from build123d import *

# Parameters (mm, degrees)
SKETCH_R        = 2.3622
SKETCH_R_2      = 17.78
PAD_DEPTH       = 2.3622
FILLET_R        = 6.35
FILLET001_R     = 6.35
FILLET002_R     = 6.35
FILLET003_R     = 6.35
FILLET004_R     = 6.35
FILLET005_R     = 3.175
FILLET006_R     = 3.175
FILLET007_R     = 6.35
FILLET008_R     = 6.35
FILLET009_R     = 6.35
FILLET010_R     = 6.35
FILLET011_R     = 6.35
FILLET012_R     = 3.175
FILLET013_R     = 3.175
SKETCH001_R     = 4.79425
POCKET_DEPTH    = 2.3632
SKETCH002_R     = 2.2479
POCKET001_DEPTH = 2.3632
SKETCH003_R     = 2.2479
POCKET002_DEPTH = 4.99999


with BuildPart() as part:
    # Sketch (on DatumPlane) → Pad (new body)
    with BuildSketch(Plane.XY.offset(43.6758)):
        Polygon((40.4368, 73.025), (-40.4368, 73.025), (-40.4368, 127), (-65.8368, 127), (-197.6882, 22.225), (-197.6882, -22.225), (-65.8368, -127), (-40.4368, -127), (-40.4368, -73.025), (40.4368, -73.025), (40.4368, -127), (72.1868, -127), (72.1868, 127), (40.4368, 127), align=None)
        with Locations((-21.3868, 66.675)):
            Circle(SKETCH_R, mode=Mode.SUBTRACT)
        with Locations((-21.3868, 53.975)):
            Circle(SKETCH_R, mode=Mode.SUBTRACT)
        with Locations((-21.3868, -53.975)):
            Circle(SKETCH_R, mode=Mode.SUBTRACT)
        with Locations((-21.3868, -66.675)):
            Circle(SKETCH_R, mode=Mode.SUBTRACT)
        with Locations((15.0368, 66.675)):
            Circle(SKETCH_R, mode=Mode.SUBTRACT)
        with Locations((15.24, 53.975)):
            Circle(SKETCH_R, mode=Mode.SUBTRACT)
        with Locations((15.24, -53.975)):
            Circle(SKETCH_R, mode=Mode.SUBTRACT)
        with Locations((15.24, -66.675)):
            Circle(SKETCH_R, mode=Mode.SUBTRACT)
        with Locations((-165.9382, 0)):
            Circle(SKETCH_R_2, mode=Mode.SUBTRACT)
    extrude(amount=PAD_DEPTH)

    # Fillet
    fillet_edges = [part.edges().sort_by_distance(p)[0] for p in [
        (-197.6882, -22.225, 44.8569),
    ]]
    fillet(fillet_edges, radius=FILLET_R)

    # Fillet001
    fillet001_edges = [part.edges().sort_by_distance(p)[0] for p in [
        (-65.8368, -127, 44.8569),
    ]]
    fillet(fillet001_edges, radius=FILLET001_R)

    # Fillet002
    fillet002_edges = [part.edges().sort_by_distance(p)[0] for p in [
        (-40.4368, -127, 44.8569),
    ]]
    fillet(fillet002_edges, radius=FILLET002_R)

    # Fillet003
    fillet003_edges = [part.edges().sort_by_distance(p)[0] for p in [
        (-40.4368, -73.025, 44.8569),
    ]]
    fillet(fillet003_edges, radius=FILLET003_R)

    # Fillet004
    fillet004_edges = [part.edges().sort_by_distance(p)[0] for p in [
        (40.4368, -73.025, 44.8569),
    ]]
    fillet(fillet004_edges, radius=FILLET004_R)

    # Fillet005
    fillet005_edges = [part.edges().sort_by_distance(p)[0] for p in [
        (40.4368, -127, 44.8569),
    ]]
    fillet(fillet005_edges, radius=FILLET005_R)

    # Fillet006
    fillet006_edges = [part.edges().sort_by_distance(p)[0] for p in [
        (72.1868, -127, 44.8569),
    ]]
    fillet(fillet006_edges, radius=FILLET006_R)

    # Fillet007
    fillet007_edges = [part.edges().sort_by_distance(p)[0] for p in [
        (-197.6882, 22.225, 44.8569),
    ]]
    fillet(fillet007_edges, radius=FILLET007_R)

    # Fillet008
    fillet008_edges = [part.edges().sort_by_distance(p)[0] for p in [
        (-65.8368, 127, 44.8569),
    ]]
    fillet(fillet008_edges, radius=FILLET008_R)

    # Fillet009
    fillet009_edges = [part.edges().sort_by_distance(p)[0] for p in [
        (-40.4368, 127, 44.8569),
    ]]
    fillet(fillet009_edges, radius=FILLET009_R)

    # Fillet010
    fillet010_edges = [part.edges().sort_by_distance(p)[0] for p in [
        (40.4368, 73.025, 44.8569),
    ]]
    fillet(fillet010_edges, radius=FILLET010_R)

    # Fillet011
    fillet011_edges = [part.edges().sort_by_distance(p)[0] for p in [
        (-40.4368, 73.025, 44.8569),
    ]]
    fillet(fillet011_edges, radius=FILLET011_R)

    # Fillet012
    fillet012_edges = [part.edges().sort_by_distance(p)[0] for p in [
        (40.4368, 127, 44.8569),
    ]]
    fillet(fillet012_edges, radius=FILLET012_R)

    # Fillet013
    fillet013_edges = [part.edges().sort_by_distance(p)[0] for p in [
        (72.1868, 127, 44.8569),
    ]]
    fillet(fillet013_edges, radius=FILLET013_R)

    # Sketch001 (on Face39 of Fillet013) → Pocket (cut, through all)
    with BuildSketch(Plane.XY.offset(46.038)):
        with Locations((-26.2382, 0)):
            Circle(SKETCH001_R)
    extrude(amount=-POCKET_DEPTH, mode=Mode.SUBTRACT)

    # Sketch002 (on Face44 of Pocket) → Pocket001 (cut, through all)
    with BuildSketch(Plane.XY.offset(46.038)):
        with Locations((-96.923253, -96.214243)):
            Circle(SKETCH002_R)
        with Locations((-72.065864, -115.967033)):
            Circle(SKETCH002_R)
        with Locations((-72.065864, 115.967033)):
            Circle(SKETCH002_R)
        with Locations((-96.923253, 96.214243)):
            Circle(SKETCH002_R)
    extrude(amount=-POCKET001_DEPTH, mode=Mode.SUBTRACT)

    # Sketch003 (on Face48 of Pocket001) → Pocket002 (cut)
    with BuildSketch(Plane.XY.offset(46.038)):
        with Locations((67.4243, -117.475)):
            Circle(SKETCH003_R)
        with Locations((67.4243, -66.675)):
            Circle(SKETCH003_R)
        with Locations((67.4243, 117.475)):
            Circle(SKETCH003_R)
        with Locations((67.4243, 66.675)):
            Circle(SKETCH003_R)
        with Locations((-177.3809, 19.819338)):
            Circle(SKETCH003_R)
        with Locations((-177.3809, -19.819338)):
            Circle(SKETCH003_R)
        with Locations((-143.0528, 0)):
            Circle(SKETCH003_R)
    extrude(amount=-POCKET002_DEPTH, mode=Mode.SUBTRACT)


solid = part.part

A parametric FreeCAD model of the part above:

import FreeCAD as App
import Part
import Sketcher
from FreeCAD import Vector
Q = App.Units.Quantity


def edges_at(feature, points):
    """Names of the edges that pass closest to the given points."""
    edges = feature.Shape.Edges
    near = lambda p: min(range(len(edges)), key=lambda i: edges[i].distToShape(Part.Vertex(*p))[0])
    return sorted({f"Edge{near(p) + 1}" for p in points})


def add_polygon(sketch, points):
    """Adds a closed chain of lines whose ends are joined by coincident constraints."""
    first, n = sketch.GeometryCount, len(points)
    for a, b in zip(points, points[1:] + points[:1]):
        sketch.addGeometry(Part.LineSegment(App.Vector(*a, 0), App.Vector(*b, 0)), False)
    for i in range(n):
        sketch.addConstraint(Sketcher.Constraint("Coincident", first + i, 2, first + (i + 1) % n, 1))

doc = App.newDocument("Part")
params = doc.addObject("Spreadsheet::Sheet", "Params")
for row, (alias, value) in enumerate([
    ("sketch1_diameter", "1.4 in"),
    ("sketch1_width", "1 in"),
    ("sketch1_height", "10 in"),
    ("sketch1_diameter2", "0.186 in"),
    ("sketch1_width2", "1.25 in"),
    ("pad1_length", "0.093 in"),
    ("fillet_radius", "0.25 in"),
    ("fillet2_radius", "0.25 in"),
    ("fillet3_radius", "0.25 in"),
    ("fillet4_radius", "0.25 in"),
    ("fillet5_radius", "0.25 in"),
    ("fillet6_radius", "0.125 in"),
    ("fillet7_radius", "0.125 in"),
    ("fillet8_radius", "0.25 in"),
    ("fillet9_radius", "0.25 in"),
    ("fillet10_radius", "0.25 in"),
    ("fillet11_radius", "0.25 in"),
    ("fillet12_radius", "0.25 in"),
    ("fillet13_radius", "0.125 in"),
    ("fillet14_radius", "0.125 in"),
    ("sketch3_diameter", "0.177 in"),
    ("sketch4_diameter", "0.177 in"),
    ("pocket3_length", "4.99999 mm"),
], start=1):
    params.set(f"A{row}", alias)
    params.set(f"B{row}", "=" + value)
    params.setAlias(f"B{row}", alias)

body = doc.addObject("PartDesign::Body", "Body")

# Sketch on XY plane
sketch1 = body.newObject("Sketcher::SketchObject", "Sketch")
sketch1.AttachmentSupport = (doc.getObject("XY_Plane"), [""])
sketch1.MapMode = "FlatFace"
sketch1.AttachmentOffset = App.Placement(Vector(0, 0, 43.6758), App.Rotation())
add_polygon(sketch1, [(40.4, 73), (-40.4, 73), (-40.4, 127), (-65.8, 127), (-197.7, 22.2), (-197.7, -22.2), (-65.8, -127), (-40.4, -127), (-40.4, -73), (40.4, -73), (40.4, -127), (72.2, -127), (72.2, 127), (40.4, 127)])  # lines 0-13
sketch1.addGeometry(Part.Circle(Vector(-21.4, -66.7, 0), Vector(0, 0, 1), 2.4), False)  # 14
sketch1.addGeometry(Part.Circle(Vector(-21.4, -54, 0), Vector(0, 0, 1), 2.4), False)  # 15
sketch1.addGeometry(Part.Circle(Vector(15.2, -66.7, 0), Vector(0, 0, 1), 2.4), False)  # 16
sketch1.addGeometry(Part.Circle(Vector(15.2, -54, 0), Vector(0, 0, 1), 2.4), False)  # 17
sketch1.addGeometry(Part.Circle(Vector(-165.9, 0, 0), Vector(0, 0, 1), 17.8), False)  # 18
sketch1.addGeometry(Part.Circle(Vector(-21.4, 54, 0), Vector(0, 0, 1), 2.4), False)  # 19
sketch1.addGeometry(Part.Circle(Vector(-21.4, 66.7, 0), Vector(0, 0, 1), 2.4), False)  # 20
sketch1.addGeometry(Part.Circle(Vector(15.2, 54, 0), Vector(0, 0, 1), 2.4), False)  # 21
sketch1.addGeometry(Part.Circle(Vector(15, 66.7, 0), Vector(0, 0, 1), 2.4), False)  # 22
sketch1.addConstraint([
    Sketcher.Constraint("Horizontal", 0),
    Sketcher.Constraint("Vertical", 1),
    Sketcher.Constraint("Horizontal", 2),
    Sketcher.Constraint("Vertical", 4),
    Sketcher.Constraint("Horizontal", 6),
    Sketcher.Constraint("Vertical", 7),
    Sketcher.Constraint("Horizontal", 8),
    Sketcher.Constraint("Vertical", 9),
    Sketcher.Constraint("Horizontal", 10),
    Sketcher.Constraint("Vertical", 11),
    Sketcher.Constraint("Horizontal", 12),
    Sketcher.Constraint("Vertical", 13),
    Sketcher.Constraint("Equal", 14, 15),
    Sketcher.Constraint("Equal", 15, 16),
    Sketcher.Constraint("Equal", 16, 17),
    Sketcher.Constraint("Equal", 17, 19),
    Sketcher.Constraint("Equal", 19, 20),
    Sketcher.Constraint("Equal", 20, 21),
    Sketcher.Constraint("Equal", 21, 22),
    Sketcher.Constraint("Symmetric", 0, 2, 8, 2, -1, 1),
    Sketcher.Constraint("Symmetric", 6, 2, 12, 2, -1, 1),
    Sketcher.Constraint("Symmetric", 6, 2, 9, 2, -2),
    Sketcher.Constraint("Symmetric", 15, 3, 19, 3, -1),
    Sketcher.Constraint("Symmetric", 14, 3, 20, 3, -1),
    Sketcher.Constraint("Symmetric", 17, 3, 21, 3, -1),
    Sketcher.Constraint("Symmetric", 2, 2, 5, 2, -1),
    Sketcher.Constraint("PointOnObject", 18, 3, -1),
    Sketcher.Constraint("Horizontal", 14, 3, 16, 3),
    Sketcher.Constraint("Horizontal", 15, 3, 17, 3),
    Sketcher.Constraint("Horizontal", 20, 3, 22, 3),
    Sketcher.Constraint("Vertical", 14, 3, 15, 3),
    Sketcher.Constraint("Vertical", 16, 3, 17, 3),
    Sketcher.Constraint("Equal", 3, 5),
    Sketcher.Constraint("Diameter", 18, Q("1.4 in")),
    Sketcher.Constraint("DistanceX", 2, 2, 2, 1, Q("1 in")),
    Sketcher.Constraint("DistanceY", 11, 1, 11, 2, Q("10 in")),
    Sketcher.Constraint("Diameter", 14, Q("0.186 in")),
    Sketcher.Constraint("DistanceY", 15, 3, 0, 2, Q("5 in")),
    Sketcher.Constraint("DistanceY", 3, 2, 0, 2, Q("2 in")),
    Sketcher.Constraint("DistanceX", 22, 3, 12, 2, Q("1 in")),
    Sketcher.Constraint("DistanceX", 10, 1, 10, 2, Q("1.25 in")),
    Sketcher.Constraint("DistanceY", 4, 2, 4, 1, Q("1.75 in")),
    Sketcher.Constraint("DistanceX", -1, 1, 16, 3, Q("0.6 in")),
    Sketcher.Constraint("DistanceY", 14, 3, 15, 3, Q("0.5 in")),
    Sketcher.Constraint("DistanceX", 0, 2, 0, 1, Q("3.184 in")),
    Sketcher.Constraint("DistanceX", 0, 2, 20, 3, Q("0.75 in")),
    Sketcher.Constraint("DistanceX", 3, 2, 18, 3, Q("1.25 in")),
    Sketcher.Constraint("DistanceX", 18, 3, -1, 1, Q("6.533 in")),
])
sketch1.setExpression("Constraints[47]", "Params.sketch1_diameter")
sketch1.setExpression("Constraints[48]", "Params.sketch1_width")
sketch1.setExpression("Constraints[49]", "Params.sketch1_height")
sketch1.setExpression("Constraints[50]", "Params.sketch1_diameter2")
sketch1.setExpression("Constraints[54]", "Params.sketch1_width2")
pad1 = body.newObject("PartDesign::Pad", "Pad")
pad1.Profile = sketch1
pad1.setExpression("Length", "Params.pad1_length")
doc.recompute()

fillet = body.newObject("PartDesign::Fillet", "Fillet")
fillet.Base = (pad1, edges_at(pad1, [(-197.688, -22.225, 44.857)]))
fillet.setExpression("Radius", "Params.fillet_radius")
doc.recompute()

fillet2 = body.newObject("PartDesign::Fillet", "Fillet001")
fillet2.Base = (fillet, edges_at(fillet, [(-65.837, -127, 44.857)]))
fillet2.setExpression("Radius", "Params.fillet2_radius")
doc.recompute()

fillet3 = body.newObject("PartDesign::Fillet", "Fillet002")
fillet3.Base = (fillet2, edges_at(fillet2, [(-40.437, -127, 44.857)]))
fillet3.setExpression("Radius", "Params.fillet3_radius")
doc.recompute()

fillet4 = body.newObject("PartDesign::Fillet", "Fillet003")
fillet4.Base = (fillet3, edges_at(fillet3, [(-40.437, -73.025, 44.857)]))
fillet4.setExpression("Radius", "Params.fillet4_radius")
doc.recompute()

fillet5 = body.newObject("PartDesign::Fillet", "Fillet004")
fillet5.Base = (fillet4, edges_at(fillet4, [(40.437, -73.025, 44.857)]))
fillet5.setExpression("Radius", "Params.fillet5_radius")
doc.recompute()

fillet6 = body.newObject("PartDesign::Fillet", "Fillet005")
fillet6.Base = (fillet5, edges_at(fillet5, [(40.437, -127, 44.857)]))
fillet6.setExpression("Radius", "Params.fillet6_radius")
doc.recompute()

fillet7 = body.newObject("PartDesign::Fillet", "Fillet006")
fillet7.Base = (fillet6, edges_at(fillet6, [(72.187, -127, 44.857)]))
fillet7.setExpression("Radius", "Params.fillet7_radius")
doc.recompute()

fillet8 = body.newObject("PartDesign::Fillet", "Fillet007")
fillet8.Base = (fillet7, edges_at(fillet7, [(-197.688, 22.225, 44.857)]))
fillet8.setExpression("Radius", "Params.fillet8_radius")
doc.recompute()

fillet9 = body.newObject("PartDesign::Fillet", "Fillet008")
fillet9.Base = (fillet8, edges_at(fillet8, [(-65.837, 127, 44.857)]))
fillet9.setExpression("Radius", "Params.fillet9_radius")
doc.recompute()

fillet10 = body.newObject("PartDesign::Fillet", "Fillet009")
fillet10.Base = (fillet9, edges_at(fillet9, [(-40.437, 127, 44.857)]))
fillet10.setExpression("Radius", "Params.fillet10_radius")
doc.recompute()

fillet11 = body.newObject("PartDesign::Fillet", "Fillet010")
fillet11.Base = (fillet10, edges_at(fillet10, [(40.437, 73.025, 44.857)]))
fillet11.setExpression("Radius", "Params.fillet11_radius")
doc.recompute()

fillet12 = body.newObject("PartDesign::Fillet", "Fillet011")
fillet12.Base = (fillet11, edges_at(fillet11, [(-40.437, 73.025, 44.857)]))
fillet12.setExpression("Radius", "Params.fillet12_radius")
doc.recompute()

fillet13 = body.newObject("PartDesign::Fillet", "Fillet012")
fillet13.Base = (fillet12, edges_at(fillet12, [(40.437, 127, 44.857)]))
fillet13.setExpression("Radius", "Params.fillet13_radius")
doc.recompute()

fillet14 = body.newObject("PartDesign::Fillet", "Fillet013")
fillet14.Base = (fillet13, edges_at(fillet13, [(72.187, 127, 44.857)]))
fillet14.setExpression("Radius", "Params.fillet14_radius")

# Sketch on XY plane
sketch2 = body.newObject("Sketcher::SketchObject", "Sketch001")
sketch2.AttachmentSupport = (doc.getObject("XY_Plane"), [""])
sketch2.MapMode = "FlatFace"
sketch2.AttachmentOffset = App.Placement(Vector(0, 0, 46.038), App.Rotation())
sketch2.addGeometry(Part.Circle(Vector(-26.2, 0, 0), Vector(0, 0, 1), 4.8), False)
sketch2.addConstraint([
    Sketcher.Constraint("PointOnObject", 0, 3, -1),
    Sketcher.Constraint("Diameter", 0, Q("0.3775 in")),
    Sketcher.Constraint("DistanceX", 0, 3, -1, 1, Q("1.033 in")),
])
pocket1 = body.newObject("PartDesign::Pocket", "Pocket")
pocket1.Profile = sketch2
pocket1.Type = "ThroughAll"

# Sketch on XY plane
sketch3 = body.newObject("Sketcher::SketchObject", "Sketch002")
sketch3.AttachmentSupport = (doc.getObject("XY_Plane"), [""])
sketch3.MapMode = "FlatFace"
sketch3.AttachmentOffset = App.Placement(Vector(0, 0, 46.038), App.Rotation())
sketch3.addGeometry([
    Part.Circle(Vector(-96.9, -96.2, 0), Vector(0, 0, 1), 2.2),
    Part.Circle(Vector(-72.1, -116, 0), Vector(0, 0, 1), 2.2),
    Part.Circle(Vector(-72.1, 116, 0), Vector(0, 0, 1), 2.2),
    Part.Circle(Vector(-96.9, 96.2, 0), Vector(0, 0, 1), 2.2),
], False)
sketch3.addConstraint([
    Sketcher.Constraint("Equal", 0, 1),
    Sketcher.Constraint("Equal", 1, 2),
    Sketcher.Constraint("Equal", 2, 3),
    Sketcher.Constraint("Symmetric", 1, 3, 2, 3, -1),
    Sketcher.Constraint("Symmetric", 0, 3, 3, 3, -1),
    Sketcher.Constraint("Diameter", 0, Q("0.177 in")),
    Sketcher.Constraint("DistanceX", 0, 3, 1, 3, Q("24.857389 mm")),
    Sketcher.Constraint("DistanceY", 1, 3, 0, 3, Q("19.75279 mm")),
    Sketcher.Constraint("DistanceX", 0, 3, -1, 1, Q("96.923253 mm")),
    Sketcher.Constraint("DistanceY", 0, 3, -1, 1, Q("96.214243 mm")),
])
sketch3.setExpression("Constraints[5]", "Params.sketch3_diameter")
pocket2 = body.newObject("PartDesign::Pocket", "Pocket001")
pocket2.Profile = sketch3
pocket2.Type = "ThroughAll"

# Sketch on XY plane
sketch4 = body.newObject("Sketcher::SketchObject", "Sketch003")
sketch4.AttachmentSupport = (doc.getObject("XY_Plane"), [""])
sketch4.MapMode = "FlatFace"
sketch4.AttachmentOffset = App.Placement(Vector(0, 0, 46.038), App.Rotation())
sketch4.addGeometry([
    Part.Circle(Vector(67.4, -117.5, 0), Vector(0, 0, 1), 2.2),  # 0
    Part.Circle(Vector(67.4, -66.7, 0), Vector(0, 0, 1), 2.2),  # 1
    Part.Circle(Vector(67.4, 117.5, 0), Vector(0, 0, 1), 2.2),  # 2
    Part.Circle(Vector(67.4, 66.7, 0), Vector(0, 0, 1), 2.2),  # 3
    Part.Circle(Vector(-177.4, 19.8, 0), Vector(0, 0, 1), 2.2),  # 4
    Part.Circle(Vector(-177.4, -19.8, 0), Vector(0, 0, 1), 2.2),  # 5
    Part.Circle(Vector(-143.1, 0, 0), Vector(0, 0, 1), 2.2),  # 6
], False)
sketch4.addConstraint([
    Sketcher.Constraint("Equal", 0, 1),
    Sketcher.Constraint("Equal", 1, 2),
    Sketcher.Constraint("Equal", 2, 3),
    Sketcher.Constraint("Equal", 3, 4),
    Sketcher.Constraint("Equal", 4, 5),
    Sketcher.Constraint("Equal", 5, 6),
    Sketcher.Constraint("Symmetric", 0, 3, 2, 3, -1),
    Sketcher.Constraint("Symmetric", 1, 3, 3, 3, -1),
    Sketcher.Constraint("Symmetric", 4, 3, 5, 3, -1),
    Sketcher.Constraint("PointOnObject", 6, 3, -1),
    Sketcher.Constraint("Vertical", 0, 3, 1, 3),
    Sketcher.Constraint("Diameter", 0, Q("0.177 in")),
    Sketcher.Constraint("DistanceY", 0, 3, 1, 3, Q("2 in")),
    Sketcher.Constraint("DistanceY", 1, 3, 2, 3, Q("7.25 in")),
    Sketcher.Constraint("DistanceX", 6, 3, -1, 1, Q("5.632 in")),
    Sketcher.Constraint("DistanceX", 4, 3, 3, 3, Q("9.638 in")),
    Sketcher.Constraint("DistanceX", -1, 1, 0, 3, Q("2.6545 in")),
    Sketcher.Constraint("DistanceY", 4, 3, 3, 3, Q("46.855662 mm")),
])
sketch4.setExpression("Constraints[11]", "Params.sketch4_diameter")
pocket3 = body.newObject("PartDesign::Pocket", "Pocket002")
pocket3.Profile = sketch4
pocket3.setExpression("Length", "Params.pocket3_length")

doc.recompute()
